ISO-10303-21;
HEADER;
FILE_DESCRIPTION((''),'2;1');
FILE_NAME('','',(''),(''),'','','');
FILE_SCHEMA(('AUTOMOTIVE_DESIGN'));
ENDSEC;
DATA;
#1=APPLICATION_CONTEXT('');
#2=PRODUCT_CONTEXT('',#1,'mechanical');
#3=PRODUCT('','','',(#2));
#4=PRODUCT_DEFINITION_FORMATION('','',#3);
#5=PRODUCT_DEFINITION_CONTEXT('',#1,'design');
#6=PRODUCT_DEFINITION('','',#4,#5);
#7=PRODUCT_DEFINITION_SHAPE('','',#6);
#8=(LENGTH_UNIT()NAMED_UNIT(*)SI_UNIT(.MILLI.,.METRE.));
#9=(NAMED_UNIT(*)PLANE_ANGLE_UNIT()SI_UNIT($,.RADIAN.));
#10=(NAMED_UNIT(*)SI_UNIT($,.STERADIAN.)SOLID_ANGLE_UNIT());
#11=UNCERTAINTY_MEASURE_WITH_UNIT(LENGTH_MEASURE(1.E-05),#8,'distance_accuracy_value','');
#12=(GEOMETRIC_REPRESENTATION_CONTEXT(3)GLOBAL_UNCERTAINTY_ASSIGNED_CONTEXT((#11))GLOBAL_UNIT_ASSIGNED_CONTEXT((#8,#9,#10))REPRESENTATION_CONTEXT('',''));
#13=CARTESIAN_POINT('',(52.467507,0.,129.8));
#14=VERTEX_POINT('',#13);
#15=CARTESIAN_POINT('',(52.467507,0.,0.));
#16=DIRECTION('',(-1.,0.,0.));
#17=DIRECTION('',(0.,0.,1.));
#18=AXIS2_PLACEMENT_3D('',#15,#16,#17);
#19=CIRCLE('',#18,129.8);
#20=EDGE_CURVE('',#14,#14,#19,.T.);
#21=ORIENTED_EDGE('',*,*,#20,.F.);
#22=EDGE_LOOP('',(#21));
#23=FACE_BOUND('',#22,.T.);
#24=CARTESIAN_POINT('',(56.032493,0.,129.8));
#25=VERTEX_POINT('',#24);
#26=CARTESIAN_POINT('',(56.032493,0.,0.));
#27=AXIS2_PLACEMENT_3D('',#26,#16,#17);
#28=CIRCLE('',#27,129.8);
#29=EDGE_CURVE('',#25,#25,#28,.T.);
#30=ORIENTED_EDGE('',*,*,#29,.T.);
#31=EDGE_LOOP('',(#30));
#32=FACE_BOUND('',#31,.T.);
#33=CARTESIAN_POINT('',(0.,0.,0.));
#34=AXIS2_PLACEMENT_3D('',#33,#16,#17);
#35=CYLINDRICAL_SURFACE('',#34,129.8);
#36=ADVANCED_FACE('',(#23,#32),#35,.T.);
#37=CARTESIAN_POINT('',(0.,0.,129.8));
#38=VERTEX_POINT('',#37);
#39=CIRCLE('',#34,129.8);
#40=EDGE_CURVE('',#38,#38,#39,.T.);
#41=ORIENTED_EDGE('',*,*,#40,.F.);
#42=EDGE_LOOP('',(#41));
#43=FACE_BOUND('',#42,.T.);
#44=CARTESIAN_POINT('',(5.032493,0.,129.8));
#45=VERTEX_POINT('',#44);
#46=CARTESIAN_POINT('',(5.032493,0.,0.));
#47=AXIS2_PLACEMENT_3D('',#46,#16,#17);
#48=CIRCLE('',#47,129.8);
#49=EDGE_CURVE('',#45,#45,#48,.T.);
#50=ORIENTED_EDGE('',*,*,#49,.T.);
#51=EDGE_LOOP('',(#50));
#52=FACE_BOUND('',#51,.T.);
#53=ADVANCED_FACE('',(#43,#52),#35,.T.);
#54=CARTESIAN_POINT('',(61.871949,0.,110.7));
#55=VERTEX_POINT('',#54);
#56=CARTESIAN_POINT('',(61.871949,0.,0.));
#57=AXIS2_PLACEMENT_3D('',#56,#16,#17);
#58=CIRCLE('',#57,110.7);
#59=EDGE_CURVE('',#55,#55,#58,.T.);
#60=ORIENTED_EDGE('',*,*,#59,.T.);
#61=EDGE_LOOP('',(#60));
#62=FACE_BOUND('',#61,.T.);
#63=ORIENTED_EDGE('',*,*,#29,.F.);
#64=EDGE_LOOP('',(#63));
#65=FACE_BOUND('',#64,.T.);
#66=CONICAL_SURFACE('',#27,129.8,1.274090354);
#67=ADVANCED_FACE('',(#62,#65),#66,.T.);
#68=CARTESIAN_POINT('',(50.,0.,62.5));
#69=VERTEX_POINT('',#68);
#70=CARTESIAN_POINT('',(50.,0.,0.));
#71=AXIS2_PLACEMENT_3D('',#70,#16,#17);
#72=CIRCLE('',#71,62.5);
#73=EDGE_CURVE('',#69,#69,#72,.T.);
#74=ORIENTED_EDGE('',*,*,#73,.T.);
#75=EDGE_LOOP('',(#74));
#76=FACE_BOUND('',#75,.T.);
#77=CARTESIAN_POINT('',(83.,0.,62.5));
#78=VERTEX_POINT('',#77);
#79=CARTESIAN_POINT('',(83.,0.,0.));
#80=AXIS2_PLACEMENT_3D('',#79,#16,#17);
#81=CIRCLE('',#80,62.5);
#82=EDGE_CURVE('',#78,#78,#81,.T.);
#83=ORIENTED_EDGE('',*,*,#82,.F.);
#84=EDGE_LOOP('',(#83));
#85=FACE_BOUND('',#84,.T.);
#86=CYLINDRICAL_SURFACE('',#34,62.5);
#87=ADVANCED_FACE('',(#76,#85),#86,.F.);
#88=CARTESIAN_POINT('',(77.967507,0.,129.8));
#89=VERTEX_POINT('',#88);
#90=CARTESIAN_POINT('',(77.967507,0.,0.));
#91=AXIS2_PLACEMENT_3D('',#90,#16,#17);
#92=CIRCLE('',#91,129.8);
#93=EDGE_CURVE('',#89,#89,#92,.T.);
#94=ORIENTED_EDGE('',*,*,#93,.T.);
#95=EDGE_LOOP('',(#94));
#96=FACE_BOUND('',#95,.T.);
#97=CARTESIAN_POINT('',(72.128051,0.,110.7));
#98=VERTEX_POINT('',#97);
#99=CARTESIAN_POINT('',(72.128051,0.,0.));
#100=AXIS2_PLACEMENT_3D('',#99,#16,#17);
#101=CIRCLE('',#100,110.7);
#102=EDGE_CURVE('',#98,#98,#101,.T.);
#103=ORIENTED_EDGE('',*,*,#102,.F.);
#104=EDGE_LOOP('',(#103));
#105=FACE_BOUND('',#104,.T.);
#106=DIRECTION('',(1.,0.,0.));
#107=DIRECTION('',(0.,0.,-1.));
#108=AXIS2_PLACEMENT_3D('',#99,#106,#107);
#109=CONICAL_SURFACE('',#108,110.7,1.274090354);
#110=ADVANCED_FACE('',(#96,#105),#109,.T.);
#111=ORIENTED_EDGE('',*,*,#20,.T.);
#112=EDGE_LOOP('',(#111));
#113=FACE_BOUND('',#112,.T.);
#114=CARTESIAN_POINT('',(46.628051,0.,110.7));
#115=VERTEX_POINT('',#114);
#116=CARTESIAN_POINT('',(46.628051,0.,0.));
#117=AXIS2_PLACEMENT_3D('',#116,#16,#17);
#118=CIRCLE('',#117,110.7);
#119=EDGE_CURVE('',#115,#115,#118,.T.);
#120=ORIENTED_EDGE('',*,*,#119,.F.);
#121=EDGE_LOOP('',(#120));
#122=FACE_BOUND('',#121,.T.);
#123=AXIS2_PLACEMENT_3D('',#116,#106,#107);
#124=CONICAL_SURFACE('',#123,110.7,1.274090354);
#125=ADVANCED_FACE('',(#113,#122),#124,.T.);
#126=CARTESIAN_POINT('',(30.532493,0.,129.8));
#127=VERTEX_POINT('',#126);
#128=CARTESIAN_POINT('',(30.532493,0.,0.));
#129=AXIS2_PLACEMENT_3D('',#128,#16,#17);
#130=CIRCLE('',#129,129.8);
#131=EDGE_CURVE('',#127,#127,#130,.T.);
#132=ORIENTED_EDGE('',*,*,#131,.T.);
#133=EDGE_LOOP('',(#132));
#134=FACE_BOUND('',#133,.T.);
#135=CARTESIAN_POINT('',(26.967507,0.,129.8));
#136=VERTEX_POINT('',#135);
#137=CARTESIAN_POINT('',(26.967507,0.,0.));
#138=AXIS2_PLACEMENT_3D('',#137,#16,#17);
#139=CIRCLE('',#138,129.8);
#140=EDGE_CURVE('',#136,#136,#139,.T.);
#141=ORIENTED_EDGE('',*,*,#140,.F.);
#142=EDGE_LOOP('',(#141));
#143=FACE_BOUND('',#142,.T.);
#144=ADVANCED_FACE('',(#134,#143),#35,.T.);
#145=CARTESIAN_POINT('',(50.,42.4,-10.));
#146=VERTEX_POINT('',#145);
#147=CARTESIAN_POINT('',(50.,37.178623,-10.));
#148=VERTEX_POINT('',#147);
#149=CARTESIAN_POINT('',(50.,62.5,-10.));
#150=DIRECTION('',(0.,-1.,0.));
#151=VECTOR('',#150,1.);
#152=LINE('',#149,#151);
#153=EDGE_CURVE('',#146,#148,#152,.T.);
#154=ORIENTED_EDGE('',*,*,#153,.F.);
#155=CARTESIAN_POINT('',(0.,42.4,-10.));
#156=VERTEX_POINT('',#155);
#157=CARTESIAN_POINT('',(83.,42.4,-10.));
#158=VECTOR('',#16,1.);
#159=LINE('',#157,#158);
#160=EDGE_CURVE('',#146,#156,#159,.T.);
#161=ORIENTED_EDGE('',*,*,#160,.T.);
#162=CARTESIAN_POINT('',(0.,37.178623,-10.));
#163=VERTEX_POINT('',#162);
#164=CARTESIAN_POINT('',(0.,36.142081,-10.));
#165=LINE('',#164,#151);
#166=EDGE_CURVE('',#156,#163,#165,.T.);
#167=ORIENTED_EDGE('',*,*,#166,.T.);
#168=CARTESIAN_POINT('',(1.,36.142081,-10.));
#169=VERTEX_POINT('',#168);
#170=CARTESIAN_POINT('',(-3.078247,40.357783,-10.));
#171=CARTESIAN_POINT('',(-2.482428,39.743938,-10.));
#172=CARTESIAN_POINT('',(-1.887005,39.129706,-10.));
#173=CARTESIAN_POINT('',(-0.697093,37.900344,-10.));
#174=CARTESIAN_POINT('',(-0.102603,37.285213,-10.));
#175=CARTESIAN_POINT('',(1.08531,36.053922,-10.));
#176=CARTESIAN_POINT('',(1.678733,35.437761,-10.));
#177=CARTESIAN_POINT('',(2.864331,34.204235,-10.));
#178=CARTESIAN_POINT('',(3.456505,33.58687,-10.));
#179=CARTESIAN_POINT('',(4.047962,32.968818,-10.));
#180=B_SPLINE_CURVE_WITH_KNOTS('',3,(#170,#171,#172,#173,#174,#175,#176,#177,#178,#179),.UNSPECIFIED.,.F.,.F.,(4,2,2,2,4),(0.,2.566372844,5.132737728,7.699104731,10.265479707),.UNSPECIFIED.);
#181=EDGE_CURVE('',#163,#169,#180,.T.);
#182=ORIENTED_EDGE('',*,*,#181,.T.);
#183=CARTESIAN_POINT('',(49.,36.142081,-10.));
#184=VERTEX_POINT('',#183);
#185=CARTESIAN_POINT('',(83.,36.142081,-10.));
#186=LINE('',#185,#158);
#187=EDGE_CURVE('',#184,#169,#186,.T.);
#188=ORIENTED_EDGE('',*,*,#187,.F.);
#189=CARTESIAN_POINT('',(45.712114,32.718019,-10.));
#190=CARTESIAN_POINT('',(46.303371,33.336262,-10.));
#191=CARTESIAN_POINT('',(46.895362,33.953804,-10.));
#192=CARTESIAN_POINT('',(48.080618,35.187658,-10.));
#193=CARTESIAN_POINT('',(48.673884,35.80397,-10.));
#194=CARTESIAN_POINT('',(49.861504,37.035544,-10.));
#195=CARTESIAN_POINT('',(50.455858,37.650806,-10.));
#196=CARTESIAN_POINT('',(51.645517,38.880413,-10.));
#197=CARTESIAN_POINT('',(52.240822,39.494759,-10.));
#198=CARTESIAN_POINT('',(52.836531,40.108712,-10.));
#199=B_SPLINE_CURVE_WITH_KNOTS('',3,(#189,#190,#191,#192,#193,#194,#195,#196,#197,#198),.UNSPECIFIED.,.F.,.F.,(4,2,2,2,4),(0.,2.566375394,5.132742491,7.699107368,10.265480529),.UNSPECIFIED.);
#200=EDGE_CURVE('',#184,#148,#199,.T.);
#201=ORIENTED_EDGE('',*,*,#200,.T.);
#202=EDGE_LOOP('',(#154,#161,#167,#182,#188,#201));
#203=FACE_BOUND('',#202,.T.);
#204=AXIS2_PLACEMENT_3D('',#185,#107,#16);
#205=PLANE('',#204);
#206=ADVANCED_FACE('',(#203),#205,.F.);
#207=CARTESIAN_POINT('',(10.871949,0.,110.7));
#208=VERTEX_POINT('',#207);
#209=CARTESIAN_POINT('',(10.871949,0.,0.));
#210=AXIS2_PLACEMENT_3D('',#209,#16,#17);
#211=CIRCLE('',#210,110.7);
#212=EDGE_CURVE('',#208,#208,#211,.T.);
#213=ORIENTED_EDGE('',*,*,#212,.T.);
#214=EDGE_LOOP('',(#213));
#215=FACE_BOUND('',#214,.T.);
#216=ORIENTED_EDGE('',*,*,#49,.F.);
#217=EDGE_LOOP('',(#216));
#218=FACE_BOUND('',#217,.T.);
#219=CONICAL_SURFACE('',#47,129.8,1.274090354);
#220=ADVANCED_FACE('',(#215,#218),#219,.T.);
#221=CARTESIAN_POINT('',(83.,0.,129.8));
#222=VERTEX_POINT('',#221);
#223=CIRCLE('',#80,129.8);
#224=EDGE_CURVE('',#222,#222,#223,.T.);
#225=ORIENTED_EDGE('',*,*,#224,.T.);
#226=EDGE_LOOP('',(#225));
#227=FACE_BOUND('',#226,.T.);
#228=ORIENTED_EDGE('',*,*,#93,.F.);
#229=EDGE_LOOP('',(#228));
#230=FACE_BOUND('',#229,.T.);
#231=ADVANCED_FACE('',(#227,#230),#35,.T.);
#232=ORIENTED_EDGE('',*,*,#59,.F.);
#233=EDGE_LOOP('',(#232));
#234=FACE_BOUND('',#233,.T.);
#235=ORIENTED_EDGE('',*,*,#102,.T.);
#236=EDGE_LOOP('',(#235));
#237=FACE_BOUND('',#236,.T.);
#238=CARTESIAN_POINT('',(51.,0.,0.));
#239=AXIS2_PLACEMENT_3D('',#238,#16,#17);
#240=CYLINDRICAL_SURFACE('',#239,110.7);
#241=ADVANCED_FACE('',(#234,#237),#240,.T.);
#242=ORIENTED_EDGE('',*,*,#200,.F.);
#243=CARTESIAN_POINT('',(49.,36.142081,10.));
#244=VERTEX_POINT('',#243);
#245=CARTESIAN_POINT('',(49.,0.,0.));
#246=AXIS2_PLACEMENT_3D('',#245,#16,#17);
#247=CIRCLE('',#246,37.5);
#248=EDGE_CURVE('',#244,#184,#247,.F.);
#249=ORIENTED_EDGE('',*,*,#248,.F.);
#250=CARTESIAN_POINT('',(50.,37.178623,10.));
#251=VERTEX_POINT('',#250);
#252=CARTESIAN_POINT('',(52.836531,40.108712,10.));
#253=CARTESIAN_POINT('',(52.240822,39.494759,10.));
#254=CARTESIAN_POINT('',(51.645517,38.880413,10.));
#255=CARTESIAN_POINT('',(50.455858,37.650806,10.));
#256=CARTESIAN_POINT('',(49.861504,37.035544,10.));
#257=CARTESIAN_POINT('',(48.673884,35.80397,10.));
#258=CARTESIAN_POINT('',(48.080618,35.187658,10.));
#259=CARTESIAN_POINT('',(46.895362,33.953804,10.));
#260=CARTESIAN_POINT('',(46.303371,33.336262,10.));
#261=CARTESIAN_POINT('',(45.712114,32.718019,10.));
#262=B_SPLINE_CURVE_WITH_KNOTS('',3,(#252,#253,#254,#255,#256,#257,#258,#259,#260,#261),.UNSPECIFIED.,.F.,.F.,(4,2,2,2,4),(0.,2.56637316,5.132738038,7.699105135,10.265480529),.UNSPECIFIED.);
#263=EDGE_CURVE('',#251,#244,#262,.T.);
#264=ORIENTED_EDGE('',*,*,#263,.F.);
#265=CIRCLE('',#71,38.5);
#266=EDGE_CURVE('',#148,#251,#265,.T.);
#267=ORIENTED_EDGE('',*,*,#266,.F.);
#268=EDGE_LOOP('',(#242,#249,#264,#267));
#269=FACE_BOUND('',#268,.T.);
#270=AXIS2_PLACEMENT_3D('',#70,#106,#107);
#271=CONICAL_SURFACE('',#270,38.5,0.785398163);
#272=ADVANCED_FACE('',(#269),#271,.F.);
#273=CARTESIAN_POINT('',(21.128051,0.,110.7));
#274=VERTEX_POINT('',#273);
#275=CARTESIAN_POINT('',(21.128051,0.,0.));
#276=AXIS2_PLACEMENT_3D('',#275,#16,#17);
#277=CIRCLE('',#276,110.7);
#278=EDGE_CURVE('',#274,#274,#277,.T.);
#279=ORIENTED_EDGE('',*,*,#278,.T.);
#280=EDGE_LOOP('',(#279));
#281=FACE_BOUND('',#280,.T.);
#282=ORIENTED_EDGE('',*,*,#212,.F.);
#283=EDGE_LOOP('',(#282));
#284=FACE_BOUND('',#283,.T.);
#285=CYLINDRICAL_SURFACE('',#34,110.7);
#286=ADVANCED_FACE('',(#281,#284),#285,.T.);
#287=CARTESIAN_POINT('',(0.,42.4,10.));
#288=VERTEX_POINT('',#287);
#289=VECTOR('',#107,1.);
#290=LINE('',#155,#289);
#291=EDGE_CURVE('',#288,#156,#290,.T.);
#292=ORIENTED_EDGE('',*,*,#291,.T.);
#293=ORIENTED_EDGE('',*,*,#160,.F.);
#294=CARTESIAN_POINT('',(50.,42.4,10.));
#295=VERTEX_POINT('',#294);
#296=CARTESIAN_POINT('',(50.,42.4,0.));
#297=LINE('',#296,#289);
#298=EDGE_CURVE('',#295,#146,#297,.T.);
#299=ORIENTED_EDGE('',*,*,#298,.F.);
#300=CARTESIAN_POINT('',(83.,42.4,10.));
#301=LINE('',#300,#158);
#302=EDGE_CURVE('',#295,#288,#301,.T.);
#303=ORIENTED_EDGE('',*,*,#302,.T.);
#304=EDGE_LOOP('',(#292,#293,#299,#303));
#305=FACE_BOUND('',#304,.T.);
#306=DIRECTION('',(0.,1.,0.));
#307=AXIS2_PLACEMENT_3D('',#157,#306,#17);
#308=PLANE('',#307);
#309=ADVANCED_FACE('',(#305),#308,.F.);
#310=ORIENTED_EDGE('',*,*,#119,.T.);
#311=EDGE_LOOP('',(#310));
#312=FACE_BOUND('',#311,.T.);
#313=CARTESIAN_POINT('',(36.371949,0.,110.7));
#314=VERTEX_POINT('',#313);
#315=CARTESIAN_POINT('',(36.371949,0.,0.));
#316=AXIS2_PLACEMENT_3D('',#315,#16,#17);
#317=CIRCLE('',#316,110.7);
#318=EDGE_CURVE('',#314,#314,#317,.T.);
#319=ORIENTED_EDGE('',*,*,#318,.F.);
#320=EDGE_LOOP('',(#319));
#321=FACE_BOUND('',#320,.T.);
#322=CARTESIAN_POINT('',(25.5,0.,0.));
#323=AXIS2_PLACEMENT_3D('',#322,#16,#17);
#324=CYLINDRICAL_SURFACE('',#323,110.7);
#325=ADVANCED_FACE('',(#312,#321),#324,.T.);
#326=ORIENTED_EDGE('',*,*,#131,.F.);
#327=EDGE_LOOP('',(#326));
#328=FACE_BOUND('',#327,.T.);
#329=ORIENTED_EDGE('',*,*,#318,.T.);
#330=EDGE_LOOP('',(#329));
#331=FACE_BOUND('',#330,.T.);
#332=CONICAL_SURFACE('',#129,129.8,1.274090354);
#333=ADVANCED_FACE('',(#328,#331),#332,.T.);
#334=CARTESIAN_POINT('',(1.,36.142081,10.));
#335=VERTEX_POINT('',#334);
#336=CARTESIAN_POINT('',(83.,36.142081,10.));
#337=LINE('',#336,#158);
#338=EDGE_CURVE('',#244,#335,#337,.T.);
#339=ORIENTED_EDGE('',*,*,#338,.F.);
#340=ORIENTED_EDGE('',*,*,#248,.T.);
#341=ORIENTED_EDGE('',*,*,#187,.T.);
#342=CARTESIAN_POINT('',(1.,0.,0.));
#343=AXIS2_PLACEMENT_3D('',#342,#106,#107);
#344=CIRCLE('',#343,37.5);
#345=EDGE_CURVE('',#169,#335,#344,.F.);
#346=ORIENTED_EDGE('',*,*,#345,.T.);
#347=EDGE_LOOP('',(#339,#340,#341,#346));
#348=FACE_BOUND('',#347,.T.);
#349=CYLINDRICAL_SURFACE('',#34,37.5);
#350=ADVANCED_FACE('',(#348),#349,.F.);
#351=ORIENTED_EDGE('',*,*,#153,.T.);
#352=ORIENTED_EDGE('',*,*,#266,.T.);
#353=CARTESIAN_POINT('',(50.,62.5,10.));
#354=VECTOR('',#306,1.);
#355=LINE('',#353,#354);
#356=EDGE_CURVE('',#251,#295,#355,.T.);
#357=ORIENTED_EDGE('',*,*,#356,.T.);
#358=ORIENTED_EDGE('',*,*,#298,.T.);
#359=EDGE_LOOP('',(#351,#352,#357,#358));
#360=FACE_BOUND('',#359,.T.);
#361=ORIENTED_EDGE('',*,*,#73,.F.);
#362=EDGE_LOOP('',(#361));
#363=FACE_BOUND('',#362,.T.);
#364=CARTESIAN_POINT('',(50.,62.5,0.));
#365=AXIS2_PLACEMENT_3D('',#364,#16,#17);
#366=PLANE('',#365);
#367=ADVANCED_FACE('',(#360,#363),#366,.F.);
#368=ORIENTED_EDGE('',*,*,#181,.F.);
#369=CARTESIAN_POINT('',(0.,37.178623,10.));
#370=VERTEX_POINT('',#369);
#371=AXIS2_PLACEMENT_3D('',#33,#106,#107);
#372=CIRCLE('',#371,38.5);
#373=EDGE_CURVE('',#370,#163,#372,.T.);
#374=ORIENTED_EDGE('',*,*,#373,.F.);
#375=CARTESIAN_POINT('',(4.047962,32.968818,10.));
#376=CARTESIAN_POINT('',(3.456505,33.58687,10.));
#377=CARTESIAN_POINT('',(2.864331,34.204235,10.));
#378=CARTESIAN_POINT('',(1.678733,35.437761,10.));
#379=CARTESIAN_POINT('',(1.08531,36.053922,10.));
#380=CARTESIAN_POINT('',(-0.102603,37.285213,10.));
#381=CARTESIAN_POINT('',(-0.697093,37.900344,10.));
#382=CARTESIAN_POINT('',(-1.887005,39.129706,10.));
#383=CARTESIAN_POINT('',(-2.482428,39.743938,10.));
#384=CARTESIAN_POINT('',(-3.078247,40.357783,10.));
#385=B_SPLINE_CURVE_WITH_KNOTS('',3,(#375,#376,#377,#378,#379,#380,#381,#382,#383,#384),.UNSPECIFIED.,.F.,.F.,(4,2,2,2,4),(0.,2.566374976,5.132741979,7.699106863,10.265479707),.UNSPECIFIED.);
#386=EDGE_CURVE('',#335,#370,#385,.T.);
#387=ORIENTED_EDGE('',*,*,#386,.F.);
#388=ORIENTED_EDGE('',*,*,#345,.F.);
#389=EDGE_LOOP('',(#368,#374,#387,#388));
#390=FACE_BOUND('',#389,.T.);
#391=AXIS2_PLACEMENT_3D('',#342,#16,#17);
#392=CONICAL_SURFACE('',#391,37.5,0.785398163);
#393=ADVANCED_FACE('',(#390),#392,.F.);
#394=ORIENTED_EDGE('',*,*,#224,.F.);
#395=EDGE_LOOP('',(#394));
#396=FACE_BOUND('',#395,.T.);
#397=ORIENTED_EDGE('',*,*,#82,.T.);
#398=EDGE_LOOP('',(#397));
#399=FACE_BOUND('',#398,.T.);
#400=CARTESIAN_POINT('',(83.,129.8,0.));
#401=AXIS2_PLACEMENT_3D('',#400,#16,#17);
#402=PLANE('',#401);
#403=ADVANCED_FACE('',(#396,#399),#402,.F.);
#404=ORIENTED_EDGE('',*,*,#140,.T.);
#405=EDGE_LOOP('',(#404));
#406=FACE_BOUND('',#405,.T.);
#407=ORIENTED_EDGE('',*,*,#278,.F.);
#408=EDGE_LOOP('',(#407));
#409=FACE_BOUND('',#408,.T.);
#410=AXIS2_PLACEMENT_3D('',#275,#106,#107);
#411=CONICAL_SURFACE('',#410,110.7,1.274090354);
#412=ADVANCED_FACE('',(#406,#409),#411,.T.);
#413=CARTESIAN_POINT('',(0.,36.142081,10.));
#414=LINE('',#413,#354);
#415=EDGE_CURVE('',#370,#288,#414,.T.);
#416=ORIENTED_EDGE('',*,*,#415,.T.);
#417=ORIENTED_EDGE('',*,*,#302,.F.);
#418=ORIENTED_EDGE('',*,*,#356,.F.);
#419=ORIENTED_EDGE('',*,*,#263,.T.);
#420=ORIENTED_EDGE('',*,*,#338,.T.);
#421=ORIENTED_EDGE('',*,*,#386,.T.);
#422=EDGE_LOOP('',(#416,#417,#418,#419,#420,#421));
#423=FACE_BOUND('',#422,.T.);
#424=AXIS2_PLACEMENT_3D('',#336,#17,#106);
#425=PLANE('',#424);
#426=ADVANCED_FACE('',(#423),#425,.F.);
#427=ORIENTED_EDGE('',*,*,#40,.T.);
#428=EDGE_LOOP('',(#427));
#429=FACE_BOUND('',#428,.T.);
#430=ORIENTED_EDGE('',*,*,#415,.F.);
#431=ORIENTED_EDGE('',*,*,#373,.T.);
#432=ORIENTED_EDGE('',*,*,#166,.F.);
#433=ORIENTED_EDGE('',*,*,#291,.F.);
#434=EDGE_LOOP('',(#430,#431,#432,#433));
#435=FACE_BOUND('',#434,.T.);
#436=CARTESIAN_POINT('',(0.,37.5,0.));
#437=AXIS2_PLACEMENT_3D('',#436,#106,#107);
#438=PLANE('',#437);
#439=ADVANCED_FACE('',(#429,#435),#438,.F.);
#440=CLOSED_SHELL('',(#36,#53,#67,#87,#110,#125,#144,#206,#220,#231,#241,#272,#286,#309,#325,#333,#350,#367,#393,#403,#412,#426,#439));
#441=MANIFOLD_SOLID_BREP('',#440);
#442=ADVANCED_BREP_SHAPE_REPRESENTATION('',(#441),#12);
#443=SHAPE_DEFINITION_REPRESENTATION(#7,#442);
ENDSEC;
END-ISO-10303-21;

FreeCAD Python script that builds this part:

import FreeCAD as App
import Part
import Sketcher

V = App.Vector
Q = App.Units.Quantity


def edges_at(feature, points):
    """Names of the edges that pass closest to the given points."""
    edges = feature.Shape.Edges
    near = lambda p: min(range(len(edges)), key=lambda i: edges[i].distToShape(Part.Vertex(*p))[0])
    return sorted({f"Edge{near(p) + 1}" for p in points})

doc = App.newDocument("Part")
body = doc.addObject("PartDesign::Body", "Body")

sketch1 = body.newObject("Sketcher::SketchObject", "Sketch")
sketch1.AttachmentSupport = (doc.getObject("XY_Plane"), [""])
sketch1.MapMode = "FlatFace"
sketch1.addGeometry([
    Part.LineSegment(V(0, 129.8, 0), V(0, 37.5, 0)),
    Part.LineSegment(V(0, 37.5, 0), V(50, 37.5, 0)),
    Part.LineSegment(V(50, 37.5, 0), V(50, 62.5, 0)),
    Part.LineSegment(V(50, 62.5, 0), V(83, 62.5, 0)),
    Part.LineSegment(V(83, 62.5, 0), V(83, 129.8, 0)),
    Part.LineSegment(V(83, 129.8, 0), V(0, 129.8, 0)),
], False)
sketch1.addConstraint([
    Sketcher.Constraint("Coincident", 0, 2, 1, 1),
    Sketcher.Constraint("Coincident", 1, 2, 2, 1),
    Sketcher.Constraint("Coincident", 2, 2, 3, 1),
    Sketcher.Constraint("Coincident", 3, 2, 4, 1),
    Sketcher.Constraint("Coincident", 4, 2, 5, 1),
    Sketcher.Constraint("Coincident", 5, 2, 0, 1),
    Sketcher.Constraint("Vertical", 0),
    Sketcher.Constraint("Horizontal", 1),
    Sketcher.Constraint("Vertical", 2),
    Sketcher.Constraint("Horizontal", 3),
    Sketcher.Constraint("Vertical", 4),
    Sketcher.Constraint("Horizontal", 5),
    Sketcher.Constraint("PointOnObject", 0, 2, -2),
    Sketcher.Constraint("DistanceX", 1, 1, 1, 2, Q("50 mm")),
    Sketcher.Constraint("DistanceX", 3, 1, 3, 2, Q("33 mm")),
    Sketcher.Constraint("DistanceY", 2, 1, 2, 2, Q("25 mm")),
    Sketcher.Constraint("DistanceY", 0, 2, 0, 1, Q("92.3 mm")),
    Sketcher.Constraint("DistanceY", -1, 1, 0, 2, Q("37.5 mm")),
])
revolution = body.newObject("PartDesign::Revolution", "Revolution")
revolution.Profile = sketch1
revolution.ReferenceAxis = (sketch1, ["H_Axis"])
revolution.Angle = 360

sketch2 = body.newObject("Sketcher::SketchObject", "Sketch001")
sketch2.AttachmentSupport = (doc.getObject("XY_Plane"), [""])
sketch2.MapMode = "FlatFace"
sketch2.addGeometry([
    Part.LineSegment(V(21.128051, 110.7, 0), V(26.967507, 129.8, 0)),
    Part.LineSegment(V(26.967507, 129.8, 0), V(5.032493, 129.8, 0)),
    Part.LineSegment(V(5.032493, 129.8, 0), V(10.871949, 110.7, 0)),
    Part.LineSegment(V(10.871949, 110.7, 0), V(21.128051, 110.7, 0)),
], False)
sketch2.addConstraint([
    Sketcher.Constraint("Coincident", 0, 2, 1, 1),
    Sketcher.Constraint("Coincident", 1, 2, 2, 1),
    Sketcher.Constraint("Coincident", 2, 2, 3, 1),
    Sketcher.Constraint("Coincident", 3, 2, 0, 1),
    Sketcher.Constraint("Horizontal", 1),
    Sketcher.Constraint("Horizontal", 3),
    Sketcher.Constraint("Equal", 0, 2),
    Sketcher.Constraint("Angle", 0, Q("73 deg")),
    Sketcher.Constraint("DistanceY", -1, 1, 0, 2, Q("129.8 mm")),
    Sketcher.Constraint("DistanceY", -1, 1, 2, 2, Q("110.7 mm")),
    Sketcher.Constraint("DistanceX", 1, 2, 1, 1, Q("21.935015 mm")),
    Sketcher.Constraint("DistanceX", -1, 1, 2, 2, Q("10.871949 mm")),
])
groove = body.newObject("PartDesign::Groove", "Groove")
groove.Profile = sketch2
groove.ReferenceAxis = (sketch2, ["H_Axis"])
groove.Angle = 360
doc.recompute()

linearpattern = body.newObject("PartDesign::LinearPattern", "LinearPattern")
linearpattern.Originals = [groove]
linearpattern.Direction = (doc.getObject("X_Axis"), [""])
linearpattern.Mode = "offset"
linearpattern.Offset = 25.5
linearpattern.Occurrences = 3
body.Tip = linearpattern
doc.recompute()

chamfer = body.newObject("PartDesign::Chamfer", "Chamfer")
chamfer.Base = (linearpattern, edges_at(linearpattern, [(0, 0, -37.5), (50, 0, -37.5)]))
chamfer.Size = 1

sketch3 = body.newObject("Sketcher::SketchObject", "Sketch002")
sketch3.AttachmentSupport = (doc.getObject("YZ_Plane"), [""])
sketch3.MapMode = "FlatFace"
sketch3.addGeometry([
    Part.LineSegment(V(42.4, -10, 0), V(36.142081, -10, 0)),
    Part.LineSegment(V(36.142081, -10, 0), V(36.142081, 10, 0)),
    Part.LineSegment(V(36.142081, 10, 0), V(42.4, 10, 0)),
    Part.LineSegment(V(42.4, 10, 0), V(42.4, -10, 0)),
], False)
sketch3.addConstraint([
    Sketcher.Constraint("Coincident", 0, 2, 1, 1),
    Sketcher.Constraint("Coincident", 1, 2, 2, 1),
    Sketcher.Constraint("Coincident", 2, 2, 3, 1),
    Sketcher.Constraint("Coincident", 3, 2, 0, 1),
    Sketcher.Constraint("Horizontal", 0),
    Sketcher.Constraint("Vertical", 1),
    Sketcher.Constraint("Horizontal", 2),
    Sketcher.Constraint("Vertical", 3),
    Sketcher.Constraint("DistanceY", 1, 1, 1, 2, Q("20 mm")),
    Sketcher.Constraint("DistanceY", 0, 2, -1, 1, Q("10 mm")),
    Sketcher.Constraint("DistanceX", -1, 1, 2, 2, Q("42.4 mm")),
    Sketcher.Constraint("DistanceX", 0, 2, 0, 1, Q("6.257919 mm")),
])
pocket1 = body.newObject("PartDesign::Pocket", "Pocket")
pocket1.Profile = sketch3
pocket1.Type = "ThroughAll"
pocket1.Reversed = True

doc.recompute()
